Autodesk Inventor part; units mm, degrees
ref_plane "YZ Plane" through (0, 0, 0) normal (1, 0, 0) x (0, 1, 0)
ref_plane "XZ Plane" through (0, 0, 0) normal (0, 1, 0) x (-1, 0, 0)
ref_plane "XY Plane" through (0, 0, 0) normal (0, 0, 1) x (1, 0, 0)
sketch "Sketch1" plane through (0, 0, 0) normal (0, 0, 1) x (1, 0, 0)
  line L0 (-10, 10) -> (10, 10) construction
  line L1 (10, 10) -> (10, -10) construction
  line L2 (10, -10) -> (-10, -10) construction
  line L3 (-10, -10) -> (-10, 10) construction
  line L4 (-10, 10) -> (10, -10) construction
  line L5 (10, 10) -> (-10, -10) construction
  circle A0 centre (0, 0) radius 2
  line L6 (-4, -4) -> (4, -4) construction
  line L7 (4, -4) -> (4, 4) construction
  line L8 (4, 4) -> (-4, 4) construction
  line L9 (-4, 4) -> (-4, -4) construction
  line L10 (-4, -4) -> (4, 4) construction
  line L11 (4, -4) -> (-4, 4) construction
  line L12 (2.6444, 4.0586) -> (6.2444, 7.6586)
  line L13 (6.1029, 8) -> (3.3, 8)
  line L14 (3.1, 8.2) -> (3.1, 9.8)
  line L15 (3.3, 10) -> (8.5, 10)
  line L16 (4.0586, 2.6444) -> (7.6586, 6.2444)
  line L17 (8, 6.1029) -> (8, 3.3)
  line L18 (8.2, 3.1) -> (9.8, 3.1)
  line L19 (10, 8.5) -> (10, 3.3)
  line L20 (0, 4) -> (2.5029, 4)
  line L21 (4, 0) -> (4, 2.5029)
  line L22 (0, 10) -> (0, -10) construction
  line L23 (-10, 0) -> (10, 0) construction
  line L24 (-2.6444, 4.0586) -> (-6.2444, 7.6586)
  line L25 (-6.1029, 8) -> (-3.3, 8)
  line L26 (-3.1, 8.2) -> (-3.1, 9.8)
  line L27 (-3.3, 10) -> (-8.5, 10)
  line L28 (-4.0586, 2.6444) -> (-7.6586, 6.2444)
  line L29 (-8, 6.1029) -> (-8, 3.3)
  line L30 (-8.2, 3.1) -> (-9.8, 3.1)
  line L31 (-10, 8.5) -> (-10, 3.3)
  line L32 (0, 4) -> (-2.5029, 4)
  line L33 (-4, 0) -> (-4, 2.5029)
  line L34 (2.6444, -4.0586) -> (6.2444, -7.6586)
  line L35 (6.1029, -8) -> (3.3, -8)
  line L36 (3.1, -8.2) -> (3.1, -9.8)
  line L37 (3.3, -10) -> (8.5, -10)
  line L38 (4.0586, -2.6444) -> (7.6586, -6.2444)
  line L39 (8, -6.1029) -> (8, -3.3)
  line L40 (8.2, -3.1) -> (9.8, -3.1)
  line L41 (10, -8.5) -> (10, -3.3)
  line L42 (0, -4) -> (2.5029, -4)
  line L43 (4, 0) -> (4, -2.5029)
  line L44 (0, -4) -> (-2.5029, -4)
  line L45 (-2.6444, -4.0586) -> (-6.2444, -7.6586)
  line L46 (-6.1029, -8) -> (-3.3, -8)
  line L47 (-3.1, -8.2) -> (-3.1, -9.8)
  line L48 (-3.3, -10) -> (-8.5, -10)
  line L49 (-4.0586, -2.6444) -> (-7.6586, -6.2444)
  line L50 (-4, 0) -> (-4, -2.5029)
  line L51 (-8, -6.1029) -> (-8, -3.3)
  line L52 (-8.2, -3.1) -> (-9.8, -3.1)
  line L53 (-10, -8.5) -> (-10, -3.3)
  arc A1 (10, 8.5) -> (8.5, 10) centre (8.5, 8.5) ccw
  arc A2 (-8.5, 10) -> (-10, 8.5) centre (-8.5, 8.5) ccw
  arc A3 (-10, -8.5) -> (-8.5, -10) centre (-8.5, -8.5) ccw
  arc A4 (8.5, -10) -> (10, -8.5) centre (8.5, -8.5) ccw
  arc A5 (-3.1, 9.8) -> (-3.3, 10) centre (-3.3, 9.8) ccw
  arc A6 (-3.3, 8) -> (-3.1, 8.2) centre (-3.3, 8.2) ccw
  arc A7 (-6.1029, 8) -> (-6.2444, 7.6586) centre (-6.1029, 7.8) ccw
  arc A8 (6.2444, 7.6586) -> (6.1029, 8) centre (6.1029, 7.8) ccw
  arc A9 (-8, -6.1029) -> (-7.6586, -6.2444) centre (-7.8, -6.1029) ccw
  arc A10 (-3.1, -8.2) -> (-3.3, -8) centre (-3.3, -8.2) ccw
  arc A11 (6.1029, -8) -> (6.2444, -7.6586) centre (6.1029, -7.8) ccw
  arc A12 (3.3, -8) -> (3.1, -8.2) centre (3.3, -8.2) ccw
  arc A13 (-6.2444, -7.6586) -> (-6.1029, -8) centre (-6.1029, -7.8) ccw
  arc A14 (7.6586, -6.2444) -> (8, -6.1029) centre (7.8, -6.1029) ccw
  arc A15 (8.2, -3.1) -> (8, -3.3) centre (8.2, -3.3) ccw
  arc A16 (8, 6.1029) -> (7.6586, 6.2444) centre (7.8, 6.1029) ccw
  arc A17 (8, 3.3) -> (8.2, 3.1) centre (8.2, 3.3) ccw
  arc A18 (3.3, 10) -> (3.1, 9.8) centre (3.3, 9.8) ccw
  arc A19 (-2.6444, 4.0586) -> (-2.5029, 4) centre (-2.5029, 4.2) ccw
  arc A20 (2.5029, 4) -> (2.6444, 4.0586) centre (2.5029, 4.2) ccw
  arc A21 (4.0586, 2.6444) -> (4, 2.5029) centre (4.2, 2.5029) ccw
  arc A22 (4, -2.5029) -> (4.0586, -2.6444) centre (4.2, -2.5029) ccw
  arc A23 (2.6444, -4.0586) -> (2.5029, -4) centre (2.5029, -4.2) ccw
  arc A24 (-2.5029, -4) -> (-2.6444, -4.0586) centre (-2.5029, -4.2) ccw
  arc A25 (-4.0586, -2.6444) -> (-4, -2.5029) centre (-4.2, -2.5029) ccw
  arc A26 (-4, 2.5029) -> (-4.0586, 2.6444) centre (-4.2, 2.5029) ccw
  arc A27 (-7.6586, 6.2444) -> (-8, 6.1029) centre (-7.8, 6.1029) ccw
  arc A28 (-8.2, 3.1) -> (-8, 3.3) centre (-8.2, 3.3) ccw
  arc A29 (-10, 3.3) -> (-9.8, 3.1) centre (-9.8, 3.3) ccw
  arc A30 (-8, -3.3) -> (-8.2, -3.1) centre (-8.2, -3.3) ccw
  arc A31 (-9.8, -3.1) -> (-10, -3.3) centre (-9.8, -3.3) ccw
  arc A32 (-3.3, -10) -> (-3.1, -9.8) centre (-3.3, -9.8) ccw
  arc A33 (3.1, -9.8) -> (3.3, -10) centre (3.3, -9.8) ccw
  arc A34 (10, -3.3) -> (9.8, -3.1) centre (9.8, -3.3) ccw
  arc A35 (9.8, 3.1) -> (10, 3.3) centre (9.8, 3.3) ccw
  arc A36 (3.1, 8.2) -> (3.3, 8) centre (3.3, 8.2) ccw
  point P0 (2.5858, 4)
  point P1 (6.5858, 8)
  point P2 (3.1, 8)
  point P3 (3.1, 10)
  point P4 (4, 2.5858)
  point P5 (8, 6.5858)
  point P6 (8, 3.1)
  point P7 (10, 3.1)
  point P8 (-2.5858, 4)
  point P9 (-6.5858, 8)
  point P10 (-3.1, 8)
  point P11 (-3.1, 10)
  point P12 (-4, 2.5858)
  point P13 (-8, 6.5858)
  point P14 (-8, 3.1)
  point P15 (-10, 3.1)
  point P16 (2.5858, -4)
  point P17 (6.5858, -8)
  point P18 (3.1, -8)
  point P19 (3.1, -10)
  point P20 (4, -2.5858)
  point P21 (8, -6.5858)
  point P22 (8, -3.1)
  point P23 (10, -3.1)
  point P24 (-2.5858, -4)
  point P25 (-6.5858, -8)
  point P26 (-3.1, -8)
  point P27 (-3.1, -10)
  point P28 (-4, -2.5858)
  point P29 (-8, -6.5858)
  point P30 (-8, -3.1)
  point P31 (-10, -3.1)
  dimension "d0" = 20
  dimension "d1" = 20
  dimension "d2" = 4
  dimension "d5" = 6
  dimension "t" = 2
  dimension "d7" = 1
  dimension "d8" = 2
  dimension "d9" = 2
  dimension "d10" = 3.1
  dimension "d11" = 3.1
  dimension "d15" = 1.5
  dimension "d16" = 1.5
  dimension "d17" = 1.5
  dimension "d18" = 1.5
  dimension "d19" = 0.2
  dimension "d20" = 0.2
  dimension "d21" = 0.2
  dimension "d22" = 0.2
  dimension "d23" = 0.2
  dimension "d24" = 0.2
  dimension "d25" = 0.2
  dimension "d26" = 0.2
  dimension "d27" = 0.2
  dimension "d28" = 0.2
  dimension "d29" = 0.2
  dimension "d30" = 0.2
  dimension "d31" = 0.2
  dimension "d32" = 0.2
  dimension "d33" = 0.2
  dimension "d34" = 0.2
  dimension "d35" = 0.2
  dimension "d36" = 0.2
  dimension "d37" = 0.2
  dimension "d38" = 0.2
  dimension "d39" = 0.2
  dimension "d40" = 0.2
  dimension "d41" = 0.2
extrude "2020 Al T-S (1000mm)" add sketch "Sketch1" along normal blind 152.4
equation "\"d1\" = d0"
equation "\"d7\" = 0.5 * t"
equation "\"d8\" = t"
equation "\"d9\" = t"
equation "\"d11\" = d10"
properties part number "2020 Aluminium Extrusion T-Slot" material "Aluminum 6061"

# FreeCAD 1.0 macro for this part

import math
import FreeCAD as App
import Part
import Sketcher
from FreeCAD import Vector
Q = App.Units.Quantity

doc = App.newDocument("Part")
body = doc.addObject("PartDesign::Body", "Body")

sketch1 = body.newObject("Sketcher::SketchObject", "Sketch")
sketch1.AttachmentSupport = (doc.getObject("XY_Plane"), [""])
sketch1.MapMode = "FlatFace"
sketch1.addGeometry([
    Part.LineSegment(Vector(6.2444, 7.6586, 0), Vector(2.6444, 4.0586, 0)),
    Part.ArcOfCircle(Part.Circle(Vector(2.5029, 4.2, 0), Vector(0, 0, 1), 0.2), math.radians(-90), math.radians(-44.979747)),
    Part.LineSegment(Vector(2.5029, 4, 0), Vector(-2.5029, 4, 0)),
    Part.ArcOfCircle(Part.Circle(Vector(-2.5029, 4.2, 0), Vector(0, 0, 1), 0.200041), math.radians(-135.020253), math.radians(-90)),
    Part.LineSegment(Vector(-2.6444, 4.0586, 0), Vector(-6.2444, 7.6586, 0)),
    Part.ArcOfCircle(Part.Circle(Vector(-6.1029, 7.8, 0), Vector(0, 0, 1), 0.2), math.radians(90), math.radians(224.979747)),
    Part.LineSegment(Vector(-6.1029, 8, 0), Vector(-3.3, 8, 0)),
    Part.ArcOfCircle(Part.Circle(Vector(-3.3, 8.2, 0), Vector(0, 0, 1), 0.2), math.radians(-90), math.radians(0)),
    Part.LineSegment(Vector(-3.1, 8.2, 0), Vector(-3.1, 9.8, 0)),
    Part.ArcOfCircle(Part.Circle(Vector(-3.3, 9.8, 0), Vector(0, 0, 1), 0.2), math.radians(0), math.radians(90)),
    Part.LineSegment(Vector(-3.3, 10, 0), Vector(-8.5, 10, 0)),
    Part.ArcOfCircle(Part.Circle(Vector(-8.5, 8.5, 0), Vector(0, 0, 1), 1.5), math.radians(90), math.radians(180)),
    Part.LineSegment(Vector(-10, 8.5, 0), Vector(-10, 3.3, 0)),
    Part.ArcOfCircle(Part.Circle(Vector(-9.8, 3.3, 0), Vector(0, 0, 1), 0.2), math.radians(180), math.radians(270)),
    Part.LineSegment(Vector(-9.8, 3.1, 0), Vector(-8.2, 3.1, 0)),
    Part.ArcOfCircle(Part.Circle(Vector(-8.2, 3.3, 0), Vector(0, 0, 1), 0.2), math.radians(-90), math.radians(0)),
    Part.LineSegment(Vector(-8, 3.3, 0), Vector(-8, 6.1029, 0)),
    Part.ArcOfCircle(Part.Circle(Vector(-7.8, 6.1029, 0), Vector(0, 0, 1), 0.200041), math.radians(45.020253), math.radians(180)),
    Part.LineSegment(Vector(-7.6586, 6.2444, 0), Vector(-4.0586, 2.6444, 0)),
    Part.ArcOfCircle(Part.Circle(Vector(-4.2, 2.5029, 0), Vector(0, 0, 1), 0.2), math.radians(0), math.radians(45.020253)),
    Part.LineSegment(Vector(-4, 2.5029, 0), Vector(-4, -2.5029, 0)),
    Part.ArcOfCircle(Part.Circle(Vector(-4.2, -2.5029, 0), Vector(0, 0, 1), 0.200041), math.radians(-45.020253), math.radians(0)),
    Part.LineSegment(Vector(-4.0586, -2.6444, 0), Vector(-7.6586, -6.2444, 0)),
    Part.ArcOfCircle(Part.Circle(Vector(-7.8, -6.1029, 0), Vector(0, 0, 1), 0.2), math.radians(180), math.radians(314.979747)),
    Part.LineSegment(Vector(-8, -6.1029, 0), Vector(-8, -3.3, 0)),
    Part.ArcOfCircle(Part.Circle(Vector(-8.2, -3.3, 0), Vector(0, 0, 1), 0.2), math.radians(0), math.radians(90)),
    Part.LineSegment(Vector(-8.2, -3.1, 0), Vector(-9.8, -3.1, 0)),
    Part.ArcOfCircle(Part.Circle(Vector(-9.8, -3.3, 0), Vector(0, 0, 1), 0.2), math.radians(90), math.radians(180)),
    Part.LineSegment(Vector(-10, -3.3, 0), Vector(-10, -8.5, 0)),
    Part.ArcOfCircle(Part.Circle(Vector(-8.5, -8.5, 0), Vector(0, 0, 1), 1.5), math.radians(180), math.radians(270)),
    Part.LineSegment(Vector(-8.5, -10, 0), Vector(-3.3, -10, 0)),
    Part.ArcOfCircle(Part.Circle(Vector(-3.3, -9.8, 0), Vector(0, 0, 1), 0.2), math.radians(-90), math.radians(0)),
    Part.LineSegment(Vector(-3.1, -9.8, 0), Vector(-3.1, -8.2, 0)),
    Part.ArcOfCircle(Part.Circle(Vector(-3.3, -8.2, 0), Vector(0, 0, 1), 0.2), math.radians(0), math.radians(90)),
    Part.LineSegment(Vector(-3.3, -8, 0), Vector(-6.1029, -8, 0)),
    Part.ArcOfCircle(Part.Circle(Vector(-6.1029, -7.8, 0), Vector(0, 0, 1), 0.200041), math.radians(135.020253), math.radians(270)),
    Part.LineSegment(Vector(-6.2444, -7.6586, 0), Vector(-2.6444, -4.0586, 0)),
    Part.ArcOfCircle(Part.Circle(Vector(-2.5029, -4.2, 0), Vector(0, 0, 1), 0.2), math.radians(90), math.radians(135.020253)),
    Part.LineSegment(Vector(-2.5029, -4, 0), Vector(2.5029, -4, 0)),
    Part.ArcOfCircle(Part.Circle(Vector(2.5029, -4.2, 0), Vector(0, 0, 1), 0.200041), math.radians(44.979747), math.radians(90)),
    Part.LineSegment(Vector(2.6444, -4.0586, 0), Vector(6.2444, -7.6586, 0)),
    Part.ArcOfCircle(Part.Circle(Vector(6.1029, -7.8, 0), Vector(0, 0, 1), 0.2), math.radians(-90), math.radians(44.979747)),
    Part.LineSegment(Vector(6.1029, -8, 0), Vector(3.3, -8, 0)),
    Part.ArcOfCircle(Part.Circle(Vector(3.3, -8.2, 0), Vector(0, 0, 1), 0.2), math.radians(90), math.radians(180)),
    Part.LineSegment(Vector(3.1, -8.2, 0), Vector(3.1, -9.8, 0)),
    Part.ArcOfCircle(Part.Circle(Vector(3.3, -9.8, 0), Vector(0, 0, 1), 0.2), math.radians(180), math.radians(270)),
    Part.LineSegment(Vector(3.3, -10, 0), Vector(8.5, -10, 0)),
    Part.ArcOfCircle(Part.Circle(Vector(8.5, -8.5, 0), Vector(0, 0, 1), 1.5), math.radians(-90), math.radians(0)),
    Part.LineSegment(Vector(10, -8.5, 0), Vector(10, -3.3, 0)),
    Part.ArcOfCircle(Part.Circle(Vector(9.8, -3.3, 0), Vector(0, 0, 1), 0.2), math.radians(0), math.radians(90)),
    Part.LineSegment(Vector(9.8, -3.1, 0), Vector(8.2, -3.1, 0)),
    Part.ArcOfCircle(Part.Circle(Vector(8.2, -3.3, 0), Vector(0, 0, 1), 0.2), math.radians(90), math.radians(180)),
    Part.LineSegment(Vector(8, -3.3, 0), Vector(8, -6.1029, 0)),
    Part.ArcOfCircle(Part.Circle(Vector(7.8, -6.1029, 0), Vector(0, 0, 1), 0.200041), math.radians(-134.979747), math.radians(0)),
    Part.LineSegment(Vector(7.6586, -6.2444, 0), Vector(4.0586, -2.6444, 0)),
    Part.ArcOfCircle(Part.Circle(Vector(4.2, -2.5029, 0), Vector(0, 0, 1), 0.2), math.radians(180), math.radians(225.020253)),
    Part.LineSegment(Vector(4, -2.5029, 0), Vector(4, 2.5029, 0)),
    Part.ArcOfCircle(Part.Circle(Vector(4.2, 2.5029, 0), Vector(0, 0, 1), 0.200041), math.radians(134.979747), math.radians(180)),
    Part.LineSegment(Vector(4.0586, 2.6444, 0), Vector(7.6586, 6.2444, 0)),
    Part.ArcOfCircle(Part.Circle(Vector(7.8, 6.1029, 0), Vector(0, 0, 1), 0.2), math.radians(0), math.radians(134.979747)),
    Part.LineSegment(Vector(8, 6.1029, 0), Vector(8, 3.3, 0)),
    Part.ArcOfCircle(Part.Circle(Vector(8.2, 3.3, 0), Vector(0, 0, 1), 0.2), math.radians(180), math.radians(270)),
    Part.LineSegment(Vector(8.2, 3.1, 0), Vector(9.8, 3.1, 0)),
    Part.ArcOfCircle(Part.Circle(Vector(9.8, 3.3, 0), Vector(0, 0, 1), 0.2), math.radians(-90), math.radians(0)),
    Part.LineSegment(Vector(10, 3.3, 0), Vector(10, 8.5, 0)),
    Part.ArcOfCircle(Part.Circle(Vector(8.5, 8.5, 0), Vector(0, 0, 1), 1.5), math.radians(0), math.radians(90)),
    Part.LineSegment(Vector(8.5, 10, 0), Vector(3.3, 10, 0)),
    Part.ArcOfCircle(Part.Circle(Vector(3.3, 9.8, 0), Vector(0, 0, 1), 0.2), math.radians(90), math.radians(180)),
    Part.LineSegment(Vector(3.1, 9.8, 0), Vector(3.1, 8.2, 0)),
    Part.ArcOfCircle(Part.Circle(Vector(3.3, 8.2, 0), Vector(0, 0, 1), 0.2), math.radians(180), math.radians(270)),
    Part.LineSegment(Vector(3.3, 8, 0), Vector(6.1029, 8, 0)),
    Part.ArcOfCircle(Part.Circle(Vector(6.1029, 7.8, 0), Vector(0, 0, 1), 0.200041), math.radians(-44.979747), math.radians(90)),
    Part.Circle(Vector(0, 0, 0), Vector(0, 0, 1), 2),
], False)
sketch1.addConstraint([
    Sketcher.Constraint("Tangent", 0, 2, 1, 2),
    Sketcher.Constraint("Tangent", 1, 1, 2, 1),
    Sketcher.Constraint("Tangent", 2, 2, 3, 2),
    Sketcher.Constraint("Tangent", 3, 1, 4, 1),
    Sketcher.Constraint("Tangent", 4, 2, 5, 2),
    Sketcher.Constraint("Tangent", 5, 1, 6, 1),
    Sketcher.Constraint("Tangent", 6, 2, 7, 1),
    Sketcher.Constraint("Tangent", 7, 2, 8, 1),
    Sketcher.Constraint("Tangent", 8, 2, 9, 1),
    Sketcher.Constraint("Tangent", 9, 2, 10, 1),
    Sketcher.Constraint("Tangent", 10, 2, 11, 1),
    Sketcher.Constraint("Tangent", 11, 2, 12, 1),
    Sketcher.Constraint("Tangent", 12, 2, 13, 1),
    Sketcher.Constraint("Tangent", 13, 2, 14, 1),
    Sketcher.Constraint("Tangent", 14, 2, 15, 1),
    Sketcher.Constraint("Tangent", 15, 2, 16, 1),
    Sketcher.Constraint("Tangent", 16, 2, 17, 2),
    Sketcher.Constraint("Tangent", 17, 1, 18, 1),
    Sketcher.Constraint("Tangent", 18, 2, 19, 2),
    Sketcher.Constraint("Tangent", 19, 1, 20, 1),
    Sketcher.Constraint("Tangent", 20, 2, 21, 2),
    Sketcher.Constraint("Tangent", 21, 1, 22, 1),
    Sketcher.Constraint("Tangent", 22, 2, 23, 2),
    Sketcher.Constraint("Tangent", 23, 1, 24, 1),
    Sketcher.Constraint("Tangent", 24, 2, 25, 1),
    Sketcher.Constraint("Tangent", 25, 2, 26, 1),
    Sketcher.Constraint("Tangent", 26, 2, 27, 1),
    Sketcher.Constraint("Tangent", 27, 2, 28, 1),
    Sketcher.Constraint("Tangent", 28, 2, 29, 1),
    Sketcher.Constraint("Tangent", 29, 2, 30, 1),
    Sketcher.Constraint("Tangent", 30, 2, 31, 1),
    Sketcher.Constraint("Tangent", 31, 2, 32, 1),
    Sketcher.Constraint("Tangent", 32, 2, 33, 1),
    Sketcher.Constraint("Tangent", 33, 2, 34, 1),
    Sketcher.Constraint("Tangent", 34, 2, 35, 2),
    Sketcher.Constraint("Tangent", 35, 1, 36, 1),
    Sketcher.Constraint("Tangent", 36, 2, 37, 2),
    Sketcher.Constraint("Tangent", 37, 1, 38, 1),
    Sketcher.Constraint("Tangent", 38, 2, 39, 2),
    Sketcher.Constraint("Tangent", 39, 1, 40, 1),
    Sketcher.Constraint("Tangent", 40, 2, 41, 2),
    Sketcher.Constraint("Tangent", 41, 1, 42, 1),
    Sketcher.Constraint("Tangent", 42, 2, 43, 1),
    Sketcher.Constraint("Tangent", 43, 2, 44, 1),
    Sketcher.Constraint("Tangent", 44, 2, 45, 1),
    Sketcher.Constraint("Tangent", 45, 2, 46, 1),
    Sketcher.Constraint("Tangent", 46, 2, 47, 1),
    Sketcher.Constraint("Tangent", 47, 2, 48, 1),
    Sketcher.Constraint("Tangent", 48, 2, 49, 1),
    Sketcher.Constraint("Tangent", 49, 2, 50, 1),
    Sketcher.Constraint("Tangent", 50, 2, 51, 1),
    Sketcher.Constraint("Tangent", 51, 2, 52, 1),
    Sketcher.Constraint("Tangent", 52, 2, 53, 2),
    Sketcher.Constraint("Tangent", 53, 1, 54, 1),
    Sketcher.Constraint("Tangent", 54, 2, 55, 2),
    Sketcher.Constraint("Tangent", 55, 1, 56, 1),
    Sketcher.Constraint("Tangent", 56, 2, 57, 2),
    Sketcher.Constraint("Tangent", 57, 1, 58, 1),
    Sketcher.Constraint("Tangent", 58, 2, 59, 2),
    Sketcher.Constraint("Tangent", 59, 1, 60, 1),
    Sketcher.Constraint("Tangent", 60, 2, 61, 1),
    Sketcher.Constraint("Tangent", 61, 2, 62, 1),
    Sketcher.Constraint("Tangent", 62, 2, 63, 1),
    Sketcher.Constraint("Tangent", 63, 2, 64, 1),
    Sketcher.Constraint("Tangent", 64, 2, 65, 1),
    Sketcher.Constraint("Tangent", 65, 2, 66, 1),
    Sketcher.Constraint("Tangent", 66, 2, 67, 1),
    Sketcher.Constraint("Tangent", 67, 2, 68, 1),
    Sketcher.Constraint("Tangent", 68, 2, 69, 1),
    Sketcher.Constraint("Tangent", 69, 2, 70, 1),
    Sketcher.Constraint("Tangent", 70, 2, 71, 2),
    Sketcher.Constraint("Tangent", 71, 1, 0, 1),
    Sketcher.Constraint("Horizontal", 2),
    Sketcher.Constraint("Horizontal", 6),
    Sketcher.Constraint("Vertical", 8),
    Sketcher.Constraint("Horizontal", 10),
    Sketcher.Constraint("Vertical", 12),
    Sketcher.Constraint("Horizontal", 14),
    Sketcher.Constraint("Vertical", 16),
    Sketcher.Constraint("Vertical", 20),
    Sketcher.Constraint("Vertical", 24),
    Sketcher.Constraint("Horizontal", 26),
    Sketcher.Constraint("Vertical", 28),
    Sketcher.Constraint("Horizontal", 30),
    Sketcher.Constraint("Vertical", 32),
    Sketcher.Constraint("Horizontal", 34),
    Sketcher.Constraint("Horizontal", 38),
    Sketcher.Constraint("Horizontal", 42),
    Sketcher.Constraint("Vertical", 44),
    Sketcher.Constraint("Horizontal", 46),
    Sketcher.Constraint("Vertical", 48),
    Sketcher.Constraint("Horizontal", 50),
    Sketcher.Constraint("Vertical", 52),
    Sketcher.Constraint("Vertical", 56),
    Sketcher.Constraint("Vertical", 60),
    Sketcher.Constraint("Horizontal", 62),
    Sketcher.Constraint("Vertical", 64),
    Sketcher.Constraint("Horizontal", 66),
    Sketcher.Constraint("Vertical", 68),
    Sketcher.Constraint("Horizontal", 70),
    Sketcher.Constraint("Coincident", 72, 3, -1, 1),
    Sketcher.Constraint("Equal", 1, 3),
    Sketcher.Constraint("Equal", 3, 5),
    Sketcher.Constraint("Equal", 5, 7),
    Sketcher.Constraint("Equal", 7, 9),
    Sketcher.Constraint("Equal", 9, 13),
    Sketcher.Constraint("Equal", 13, 15),
    Sketcher.Constraint("Equal", 15, 17),
    Sketcher.Constraint("Equal", 17, 19),
    Sketcher.Constraint("Equal", 19, 21),
    Sketcher.Constraint("Equal", 21, 23),
    Sketcher.Constraint("Equal", 23, 25),
    Sketcher.Constraint("Equal", 25, 27),
    Sketcher.Constraint("Equal", 11, 29),
    Sketcher.Constraint("Equal", 27, 31),
    Sketcher.Constraint("Equal", 31, 33),
    Sketcher.Constraint("Equal", 33, 35),
    Sketcher.Constraint("Equal", 35, 37),
    Sketcher.Constraint("Equal", 37, 39),
    Sketcher.Constraint("Equal", 39, 41),
    Sketcher.Constraint("Equal", 41, 43),
    Sketcher.Constraint("Equal", 43, 45),
    Sketcher.Constraint("Equal", 29, 47),
    Sketcher.Constraint("Equal", 45, 49),
    Sketcher.Constraint("Equal", 49, 51),
    Sketcher.Constraint("Equal", 51, 53),
    Sketcher.Constraint("Equal", 53, 55),
    Sketcher.Constraint("Equal", 55, 57),
    Sketcher.Constraint("Equal", 57, 59),
    Sketcher.Constraint("Equal", 59, 61),
    Sketcher.Constraint("Equal", 61, 63),
    Sketcher.Constraint("Equal", 47, 65),
    Sketcher.Constraint("Equal", 63, 67),
    Sketcher.Constraint("Equal", 67, 69),
    Sketcher.Constraint("Equal", 69, 71),
    Sketcher.Constraint("Symmetric", 1, 3, 37, 3, -1, 1),
    Sketcher.Constraint("Symmetric", 5, 3, 41, 3, -1, 1),
    Sketcher.Constraint("Symmetric", 9, 3, 45, 3, -1, 1),
    Sketcher.Constraint("Symmetric", 13, 3, 49, 3, -1, 1),
    Sketcher.Constraint("Symmetric", 17, 3, 53, 3, -1, 1),
    Sketcher.Constraint("Symmetric", 19, 3, 55, 3, -1, 1),
    Sketcher.Constraint("Symmetric", 23, 3, 59, 3, -1, 1),
    Sketcher.Constraint("Symmetric", 27, 3, 63, 3, -1, 1),
    Sketcher.Constraint("Symmetric", 31, 3, 67, 3, -1, 1),
    Sketcher.Constraint("Symmetric", 35, 3, 71, 3, -1, 1),
    Sketcher.Constraint("Symmetric", 35, 3, 41, 3, -2),
    Sketcher.Constraint("Symmetric", 31, 3, 45, 3, -2),
    Sketcher.Constraint("Symmetric", 27, 3, 49, 3, -2),
    Sketcher.Constraint("Symmetric", 23, 3, 53, 3, -2),
    Sketcher.Constraint("Perpendicular", 0, 4),
    Sketcher.Constraint("Parallel", 4, 18),
    Sketcher.Constraint("Perpendicular", 18, 22),
    Sketcher.Constraint("Perpendicular", 36, 40),
    Sketcher.Constraint("Perpendicular", 54, 58),
    Sketcher.Constraint("Horizontal", 21, 3, 55, 3),
    Sketcher.Constraint("Equal", 62, 8),
    Sketcher.Constraint("Equal", 66, 12),
    Sketcher.Constraint("Equal", 70, 16),
    Sketcher.Constraint("Equal", 38, 20),
    Sketcher.Constraint("Equal", 4, 18),
    Sketcher.Constraint("Diameter", 72, Q("4 mm")),
    Sketcher.Constraint("Radius", 1, Q("0.2 mm")),
    Sketcher.Constraint("Radius", 11, Q("1.5 mm")),
    Sketcher.Constraint("DistanceY", -1, 1, 1, 1, Q("4 mm")),
    Sketcher.Constraint("DistanceX", 7, 2, -1, 1, Q("3.1 mm")),
    Sketcher.Constraint("DistanceX", 10, 2, 10, 1, Q("5.2 mm")),
    Sketcher.Constraint("DistanceX", 14, 1, 14, 2, Q("1.6 mm")),
    Sketcher.Constraint("DistanceX", 6, 1, 6, 2, Q("2.803 mm")),
])
pad1 = body.newObject("PartDesign::Pad", "Pad")
pad1.Profile = sketch1
pad1.Length = 152.4

doc.recompute()
